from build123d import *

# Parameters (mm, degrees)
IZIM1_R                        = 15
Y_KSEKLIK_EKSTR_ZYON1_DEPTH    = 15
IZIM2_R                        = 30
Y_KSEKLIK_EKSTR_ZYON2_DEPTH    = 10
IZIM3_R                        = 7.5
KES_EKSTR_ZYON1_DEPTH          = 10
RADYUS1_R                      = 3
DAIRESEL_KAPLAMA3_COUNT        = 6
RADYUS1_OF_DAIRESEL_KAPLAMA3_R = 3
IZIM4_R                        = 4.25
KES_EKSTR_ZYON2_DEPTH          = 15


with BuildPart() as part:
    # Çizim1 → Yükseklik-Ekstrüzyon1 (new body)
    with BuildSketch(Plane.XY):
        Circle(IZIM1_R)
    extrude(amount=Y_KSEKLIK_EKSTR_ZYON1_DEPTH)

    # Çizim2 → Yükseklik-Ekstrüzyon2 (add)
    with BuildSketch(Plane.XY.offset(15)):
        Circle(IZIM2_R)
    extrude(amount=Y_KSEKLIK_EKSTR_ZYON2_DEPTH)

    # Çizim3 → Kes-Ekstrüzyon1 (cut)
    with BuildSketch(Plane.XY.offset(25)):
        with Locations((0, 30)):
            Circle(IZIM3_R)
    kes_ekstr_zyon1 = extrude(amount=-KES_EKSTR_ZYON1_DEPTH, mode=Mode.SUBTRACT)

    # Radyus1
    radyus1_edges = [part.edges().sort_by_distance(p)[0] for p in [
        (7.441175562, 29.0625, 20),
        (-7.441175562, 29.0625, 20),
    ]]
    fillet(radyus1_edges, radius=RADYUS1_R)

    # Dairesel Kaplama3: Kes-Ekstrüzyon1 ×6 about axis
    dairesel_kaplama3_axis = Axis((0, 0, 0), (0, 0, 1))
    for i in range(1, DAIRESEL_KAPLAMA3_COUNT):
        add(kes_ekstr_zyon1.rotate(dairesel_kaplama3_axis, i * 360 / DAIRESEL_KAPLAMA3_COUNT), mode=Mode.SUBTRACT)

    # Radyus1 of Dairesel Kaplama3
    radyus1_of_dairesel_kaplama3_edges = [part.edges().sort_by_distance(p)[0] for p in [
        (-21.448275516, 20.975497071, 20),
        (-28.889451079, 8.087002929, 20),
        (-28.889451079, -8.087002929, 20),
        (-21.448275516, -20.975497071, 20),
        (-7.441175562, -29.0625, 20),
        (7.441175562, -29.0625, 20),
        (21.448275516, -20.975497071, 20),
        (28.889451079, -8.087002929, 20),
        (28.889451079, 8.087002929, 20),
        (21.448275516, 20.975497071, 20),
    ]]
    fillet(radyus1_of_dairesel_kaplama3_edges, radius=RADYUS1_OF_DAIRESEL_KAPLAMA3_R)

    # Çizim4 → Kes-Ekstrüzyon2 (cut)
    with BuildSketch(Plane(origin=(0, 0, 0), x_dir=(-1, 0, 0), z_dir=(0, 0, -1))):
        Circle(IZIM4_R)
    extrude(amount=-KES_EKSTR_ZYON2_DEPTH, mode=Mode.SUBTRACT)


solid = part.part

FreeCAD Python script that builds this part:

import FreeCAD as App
import Part
import Sketcher


def edges_at(feature, points):
    """Names of the edges that pass closest to the given points."""
    edges = feature.Shape.Edges
    near = lambda p: min(range(len(edges)), key=lambda i: edges[i].distToShape(Part.Vertex(*p))[0])
    return sorted({f"Edge{near(p) + 1}" for p in points})

doc = App.newDocument("Part")
body = doc.addObject("PartDesign::Body", "Body")

sketch1 = doc.addObject("Sketcher::SketchObject", "Sketch")
body.addObject(sketch1)
sketch1.AttachmentSupport = (doc.XY_Plane, [""])
sketch1.MapMode = "FlatFace"
sketch1.addGeometry(Part.Circle(App.Vector(0, 0, 0), App.Vector(0, 0, 1), 15), False)
sketch1.addConstraint([
    Sketcher.Constraint("Coincident", 0, 3, -1, 1),
    Sketcher.Constraint("Diameter", 0, 30.0),
])
pad1 = doc.addObject("PartDesign::Pad", "Pad")
body.addObject(pad1)
pad1.Profile = sketch1
pad1.Length = 15

sketch2 = doc.addObject("Sketcher::SketchObject", "Sketch001")
body.addObject(sketch2)
sketch2.AttachmentSupport = (doc.XY_Plane, [""])
sketch2.MapMode = "FlatFace"
sketch2.AttachmentOffset = App.Placement(App.Vector(0, 0, 15), App.Rotation())
sketch2.addGeometry(Part.Circle(App.Vector(0, 0, 0), App.Vector(0, 0, 1), 30), False)
sketch2.addConstraint([
    Sketcher.Constraint("Coincident", 0, 3, -1, 1),
    Sketcher.Constraint("Diameter", 0, 60.0),
])
pad2 = doc.addObject("PartDesign::Pad", "Pad001")
body.addObject(pad2)
pad2.Profile = sketch2
pad2.Length = 10

sketch3 = doc.addObject("Sketcher::SketchObject", "Sketch002")
body.addObject(sketch3)
sketch3.AttachmentSupport = (doc.XY_Plane, [""])
sketch3.MapMode = "FlatFace"
sketch3.AttachmentOffset = App.Placement(App.Vector(0, 0, 25), App.Rotation())
sketch3.addGeometry(Part.Circle(App.Vector(0, 30, 0), App.Vector(0, 0, 1), 8), False)
sketch3.addConstraint([
    Sketcher.Constraint("PointOnObject", 0, 3, -2),
    Sketcher.Constraint("Diameter", 0, 15.0),
    Sketcher.Constraint("DistanceY", -1, 1, 0, 3, 30.0),
])
pocket1 = doc.addObject("PartDesign::Pocket", "Pocket")
body.addObject(pocket1)
pocket1.Profile = sketch3
pocket1.Length = 10
doc.recompute()

fillet = doc.addObject("PartDesign::Fillet", "Fillet")
body.addObject(fillet)
fillet.Base = (pocket1, edges_at(pocket1, [(7.441, 29.062, 20), (-7.441, 29.062, 20)]))
fillet.Radius = 3
doc.recompute()

polarpattern = doc.addObject("PartDesign::PolarPattern", "PolarPattern")
body.addObject(polarpattern)
polarpattern.Originals = [pocket1]
polarpattern.Axis = (doc.Z_Axis, [""])
polarpattern.Angle = 360
polarpattern.Occurrences = 6
body.Tip = polarpattern
doc.recompute()

fillet2 = doc.addObject("PartDesign::Fillet", "Fillet001")
body.addObject(fillet2)
fillet2.Base = (polarpattern, edges_at(polarpattern, [
    (-21.448, 20.975, 20),
    (-28.889, 8.087, 20),
    (-28.889, -8.087, 20),
    (-21.448, -20.975, 20),
    (-7.441, -29.062, 20),
    (7.441, -29.062, 20),
    (21.448, -20.975, 20),
    (28.889, -8.087, 20),
    (28.889, 8.087, 20),
    (21.448, 20.975, 20),
]))
fillet2.Radius = 3

sketch4 = doc.addObject("Sketcher::SketchObject", "Sketch003")
body.addObject(sketch4)
sketch4.AttachmentSupport = (doc.XY_Plane, [""])
sketch4.MapMode = "FlatFace"
sketch4.addGeometry(Part.Circle(App.Vector(0, 0, 0), App.Vector(0, 0, 1), 4.2), False)
sketch4.addConstraint([
    Sketcher.Constraint("Coincident", 0, 3, -1, 1),
    Sketcher.Constraint("Diameter", 0, 8.5),
])
pocket2 = doc.addObject("PartDesign::Pocket", "Pocket001")
body.addObject(pocket2)
pocket2.Profile = sketch4
pocket2.Length = 15
pocket2.Reversed = True

doc.recompute()
